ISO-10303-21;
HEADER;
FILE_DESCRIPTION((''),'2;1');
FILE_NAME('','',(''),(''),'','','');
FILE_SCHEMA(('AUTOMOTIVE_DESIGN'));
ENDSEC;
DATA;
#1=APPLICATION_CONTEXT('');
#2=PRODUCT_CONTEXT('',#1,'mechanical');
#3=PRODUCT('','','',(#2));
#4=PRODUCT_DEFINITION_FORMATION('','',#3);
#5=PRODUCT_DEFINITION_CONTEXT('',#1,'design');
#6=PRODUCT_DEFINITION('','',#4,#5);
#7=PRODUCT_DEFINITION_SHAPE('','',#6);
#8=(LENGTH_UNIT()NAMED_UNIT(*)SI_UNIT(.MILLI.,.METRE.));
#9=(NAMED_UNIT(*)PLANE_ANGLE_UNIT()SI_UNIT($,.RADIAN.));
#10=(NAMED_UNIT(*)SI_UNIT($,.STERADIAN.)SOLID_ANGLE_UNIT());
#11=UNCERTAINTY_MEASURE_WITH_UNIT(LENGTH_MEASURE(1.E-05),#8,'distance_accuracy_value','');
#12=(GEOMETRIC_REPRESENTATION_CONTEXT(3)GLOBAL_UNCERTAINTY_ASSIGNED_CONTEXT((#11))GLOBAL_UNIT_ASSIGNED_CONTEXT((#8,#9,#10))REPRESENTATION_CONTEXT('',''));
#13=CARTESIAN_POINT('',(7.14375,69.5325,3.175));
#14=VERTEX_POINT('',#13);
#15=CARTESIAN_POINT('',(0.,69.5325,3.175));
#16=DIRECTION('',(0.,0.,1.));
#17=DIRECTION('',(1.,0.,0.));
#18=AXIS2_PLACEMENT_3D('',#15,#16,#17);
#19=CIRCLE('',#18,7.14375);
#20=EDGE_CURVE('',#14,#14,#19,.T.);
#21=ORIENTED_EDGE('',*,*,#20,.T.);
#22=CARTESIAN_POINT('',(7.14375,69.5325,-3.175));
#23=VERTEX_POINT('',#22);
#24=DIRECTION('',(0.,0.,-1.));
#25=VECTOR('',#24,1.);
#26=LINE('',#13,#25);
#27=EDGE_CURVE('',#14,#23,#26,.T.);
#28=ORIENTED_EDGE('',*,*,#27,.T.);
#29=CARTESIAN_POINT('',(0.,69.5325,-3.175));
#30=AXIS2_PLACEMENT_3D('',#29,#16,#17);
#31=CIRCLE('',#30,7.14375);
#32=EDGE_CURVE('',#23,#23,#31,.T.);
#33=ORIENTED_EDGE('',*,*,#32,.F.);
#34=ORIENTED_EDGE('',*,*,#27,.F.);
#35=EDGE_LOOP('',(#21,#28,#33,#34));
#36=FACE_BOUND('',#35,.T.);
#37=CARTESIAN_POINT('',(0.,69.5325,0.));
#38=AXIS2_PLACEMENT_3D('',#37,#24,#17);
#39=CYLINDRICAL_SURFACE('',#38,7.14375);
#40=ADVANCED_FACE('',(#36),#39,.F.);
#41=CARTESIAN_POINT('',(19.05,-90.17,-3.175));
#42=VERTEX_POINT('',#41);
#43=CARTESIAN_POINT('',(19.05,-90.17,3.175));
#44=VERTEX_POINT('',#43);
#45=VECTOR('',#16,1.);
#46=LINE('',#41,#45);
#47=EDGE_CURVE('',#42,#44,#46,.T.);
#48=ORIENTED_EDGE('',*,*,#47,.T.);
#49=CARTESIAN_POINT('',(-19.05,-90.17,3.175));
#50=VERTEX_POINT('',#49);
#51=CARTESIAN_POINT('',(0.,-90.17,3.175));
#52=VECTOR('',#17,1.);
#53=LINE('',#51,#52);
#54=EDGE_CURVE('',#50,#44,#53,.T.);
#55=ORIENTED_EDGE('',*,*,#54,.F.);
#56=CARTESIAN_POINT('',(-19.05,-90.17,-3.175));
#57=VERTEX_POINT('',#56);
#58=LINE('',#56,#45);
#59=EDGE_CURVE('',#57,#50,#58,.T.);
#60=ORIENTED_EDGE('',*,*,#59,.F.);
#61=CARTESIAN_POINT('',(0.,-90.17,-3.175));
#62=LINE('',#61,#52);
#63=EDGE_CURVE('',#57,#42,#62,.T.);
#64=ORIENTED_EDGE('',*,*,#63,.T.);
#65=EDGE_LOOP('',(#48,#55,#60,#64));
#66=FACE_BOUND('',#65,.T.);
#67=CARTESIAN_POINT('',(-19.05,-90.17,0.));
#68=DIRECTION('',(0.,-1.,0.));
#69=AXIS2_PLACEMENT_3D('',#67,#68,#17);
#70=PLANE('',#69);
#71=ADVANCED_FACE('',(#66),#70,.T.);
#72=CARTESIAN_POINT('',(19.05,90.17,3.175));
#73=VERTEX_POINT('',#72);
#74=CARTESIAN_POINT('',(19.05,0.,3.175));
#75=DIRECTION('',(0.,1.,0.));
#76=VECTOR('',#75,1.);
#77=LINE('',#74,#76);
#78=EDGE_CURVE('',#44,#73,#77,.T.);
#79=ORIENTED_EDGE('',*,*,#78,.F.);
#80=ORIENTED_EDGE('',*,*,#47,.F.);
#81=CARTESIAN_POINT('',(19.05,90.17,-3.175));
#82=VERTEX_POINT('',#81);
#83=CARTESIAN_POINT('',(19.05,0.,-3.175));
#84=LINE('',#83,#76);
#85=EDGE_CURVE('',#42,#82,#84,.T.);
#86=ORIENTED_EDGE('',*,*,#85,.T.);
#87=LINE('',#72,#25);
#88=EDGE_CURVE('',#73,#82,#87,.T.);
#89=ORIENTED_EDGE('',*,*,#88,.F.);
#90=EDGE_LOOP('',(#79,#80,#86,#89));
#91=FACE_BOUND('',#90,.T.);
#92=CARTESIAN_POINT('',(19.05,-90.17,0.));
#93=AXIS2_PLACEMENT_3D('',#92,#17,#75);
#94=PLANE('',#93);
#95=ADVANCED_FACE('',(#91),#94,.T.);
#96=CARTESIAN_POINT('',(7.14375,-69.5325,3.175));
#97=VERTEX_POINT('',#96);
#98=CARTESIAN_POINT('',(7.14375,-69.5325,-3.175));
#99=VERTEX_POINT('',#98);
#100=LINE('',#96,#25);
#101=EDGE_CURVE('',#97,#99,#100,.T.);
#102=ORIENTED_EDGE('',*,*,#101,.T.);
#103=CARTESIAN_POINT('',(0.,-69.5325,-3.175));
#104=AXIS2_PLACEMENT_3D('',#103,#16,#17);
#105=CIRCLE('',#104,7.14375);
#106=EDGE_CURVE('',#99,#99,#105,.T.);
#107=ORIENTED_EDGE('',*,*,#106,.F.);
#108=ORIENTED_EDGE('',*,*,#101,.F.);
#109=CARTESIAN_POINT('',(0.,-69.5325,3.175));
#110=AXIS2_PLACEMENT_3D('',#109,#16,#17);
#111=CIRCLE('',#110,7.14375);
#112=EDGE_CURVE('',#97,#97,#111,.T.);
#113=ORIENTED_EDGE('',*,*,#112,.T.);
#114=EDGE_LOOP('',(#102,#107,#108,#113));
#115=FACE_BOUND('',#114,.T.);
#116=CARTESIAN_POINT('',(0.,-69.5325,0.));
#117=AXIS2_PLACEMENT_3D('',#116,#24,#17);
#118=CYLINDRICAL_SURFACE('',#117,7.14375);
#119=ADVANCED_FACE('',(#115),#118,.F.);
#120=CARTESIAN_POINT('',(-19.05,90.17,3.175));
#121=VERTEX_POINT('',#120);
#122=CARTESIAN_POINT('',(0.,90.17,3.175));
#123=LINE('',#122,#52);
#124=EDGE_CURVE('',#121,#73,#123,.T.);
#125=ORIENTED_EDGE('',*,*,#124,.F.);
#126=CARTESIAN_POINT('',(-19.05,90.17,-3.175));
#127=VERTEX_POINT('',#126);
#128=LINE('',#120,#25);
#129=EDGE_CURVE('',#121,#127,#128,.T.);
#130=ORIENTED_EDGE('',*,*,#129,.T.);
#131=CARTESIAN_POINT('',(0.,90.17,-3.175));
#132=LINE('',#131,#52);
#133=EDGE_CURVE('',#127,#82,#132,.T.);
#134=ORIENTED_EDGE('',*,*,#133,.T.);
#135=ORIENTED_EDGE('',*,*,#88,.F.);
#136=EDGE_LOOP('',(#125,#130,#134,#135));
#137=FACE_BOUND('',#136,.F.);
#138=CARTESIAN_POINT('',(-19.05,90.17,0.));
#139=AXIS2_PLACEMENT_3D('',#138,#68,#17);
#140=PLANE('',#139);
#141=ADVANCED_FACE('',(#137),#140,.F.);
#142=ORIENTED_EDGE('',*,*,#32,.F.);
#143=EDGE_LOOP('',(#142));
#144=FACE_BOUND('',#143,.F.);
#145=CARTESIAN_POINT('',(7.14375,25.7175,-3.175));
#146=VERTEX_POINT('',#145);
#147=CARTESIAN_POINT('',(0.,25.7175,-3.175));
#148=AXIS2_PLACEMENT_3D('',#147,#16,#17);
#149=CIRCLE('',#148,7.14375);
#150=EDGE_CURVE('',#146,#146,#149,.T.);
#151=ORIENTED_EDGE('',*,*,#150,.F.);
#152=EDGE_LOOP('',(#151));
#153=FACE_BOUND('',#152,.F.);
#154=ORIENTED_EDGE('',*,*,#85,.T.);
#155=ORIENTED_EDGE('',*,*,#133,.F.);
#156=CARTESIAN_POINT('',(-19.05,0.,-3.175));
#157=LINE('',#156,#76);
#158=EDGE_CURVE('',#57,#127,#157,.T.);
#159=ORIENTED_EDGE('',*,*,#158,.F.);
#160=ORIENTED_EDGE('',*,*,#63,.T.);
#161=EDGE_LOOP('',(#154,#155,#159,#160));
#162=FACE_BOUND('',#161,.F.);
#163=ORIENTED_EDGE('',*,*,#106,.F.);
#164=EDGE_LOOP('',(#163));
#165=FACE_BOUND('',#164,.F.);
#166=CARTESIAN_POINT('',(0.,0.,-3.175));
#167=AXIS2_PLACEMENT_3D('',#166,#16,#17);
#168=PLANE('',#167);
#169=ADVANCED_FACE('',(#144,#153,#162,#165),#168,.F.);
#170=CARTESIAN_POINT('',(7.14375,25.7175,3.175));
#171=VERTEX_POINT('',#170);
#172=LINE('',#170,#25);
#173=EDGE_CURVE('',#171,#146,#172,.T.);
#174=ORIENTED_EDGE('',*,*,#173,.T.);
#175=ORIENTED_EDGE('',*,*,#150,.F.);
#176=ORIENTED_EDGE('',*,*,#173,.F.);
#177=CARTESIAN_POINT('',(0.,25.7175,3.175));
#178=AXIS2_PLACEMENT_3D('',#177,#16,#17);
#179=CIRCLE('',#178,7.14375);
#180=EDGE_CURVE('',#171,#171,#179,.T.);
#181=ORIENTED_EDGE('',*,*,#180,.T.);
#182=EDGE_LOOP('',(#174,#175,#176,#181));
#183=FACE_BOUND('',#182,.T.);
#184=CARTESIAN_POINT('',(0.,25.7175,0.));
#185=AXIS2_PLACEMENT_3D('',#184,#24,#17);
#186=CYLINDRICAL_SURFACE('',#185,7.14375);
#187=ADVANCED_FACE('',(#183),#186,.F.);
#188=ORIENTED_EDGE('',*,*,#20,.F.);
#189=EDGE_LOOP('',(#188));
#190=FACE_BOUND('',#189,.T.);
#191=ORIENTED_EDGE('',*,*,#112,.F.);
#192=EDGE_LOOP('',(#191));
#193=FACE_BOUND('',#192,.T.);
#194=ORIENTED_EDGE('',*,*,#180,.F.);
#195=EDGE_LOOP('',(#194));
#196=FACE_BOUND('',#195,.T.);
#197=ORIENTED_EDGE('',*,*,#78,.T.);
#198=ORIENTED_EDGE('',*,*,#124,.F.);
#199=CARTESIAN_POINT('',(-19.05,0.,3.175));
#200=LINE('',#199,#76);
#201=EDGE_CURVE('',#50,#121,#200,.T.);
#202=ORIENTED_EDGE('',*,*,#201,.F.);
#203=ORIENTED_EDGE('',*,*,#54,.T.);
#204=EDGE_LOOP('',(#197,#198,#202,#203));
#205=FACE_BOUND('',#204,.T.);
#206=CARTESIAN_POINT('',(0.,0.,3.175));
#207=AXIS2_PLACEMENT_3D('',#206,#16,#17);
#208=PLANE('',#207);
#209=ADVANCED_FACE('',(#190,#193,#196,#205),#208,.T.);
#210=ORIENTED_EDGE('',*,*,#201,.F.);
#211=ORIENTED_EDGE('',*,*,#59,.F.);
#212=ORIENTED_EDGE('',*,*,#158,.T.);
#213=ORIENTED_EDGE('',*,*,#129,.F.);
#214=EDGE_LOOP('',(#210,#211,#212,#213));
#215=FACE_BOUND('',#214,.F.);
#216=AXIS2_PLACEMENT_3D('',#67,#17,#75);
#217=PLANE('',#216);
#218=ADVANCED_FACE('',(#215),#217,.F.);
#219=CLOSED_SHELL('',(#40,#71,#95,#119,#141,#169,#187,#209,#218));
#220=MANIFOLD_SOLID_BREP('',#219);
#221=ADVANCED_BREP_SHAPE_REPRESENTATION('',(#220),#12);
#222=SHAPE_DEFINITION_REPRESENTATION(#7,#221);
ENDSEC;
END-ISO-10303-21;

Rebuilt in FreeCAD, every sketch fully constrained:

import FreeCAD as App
import Part
import Sketcher
from FreeCAD import Vector
Q = App.Units.Quantity


def add_polygon(sketch, points):
    """Adds a closed chain of lines whose ends are joined by coincident constraints."""
    first, n = sketch.GeometryCount, len(points)
    for a, b in zip(points, points[1:] + points[:1]):
        sketch.addGeometry(Part.LineSegment(App.Vector(*a, 0), App.Vector(*b, 0)), False)
    for i in range(n):
        sketch.addConstraint(Sketcher.Constraint("Coincident", first + i, 2, first + (i + 1) % n, 1))

doc = App.newDocument("Part")
body = doc.addObject("PartDesign::Body", "Body")

# Sketch on XY plane
sketch1 = body.newObject("Sketcher::SketchObject", "Sketch")
sketch1.AttachmentSupport = (doc.getObject("XY_Plane"), [""])
sketch1.MapMode = "FlatFace"
add_polygon(sketch1, [(-19, 90), (-19, -90), (19, -90), (19, 90)])  # lines 0-3
sketch1.addGeometry(Part.Circle(Vector(0, -70, 0), Vector(0, 0, 1), 7), False)  # 4
sketch1.addGeometry(Part.Circle(Vector(0, 26, 0), Vector(0, 0, 1), 7), False)  # 5
sketch1.addGeometry(Part.Circle(Vector(0, 70, 0), Vector(0, 0, 1), 7), False)  # 6
sketch1.addConstraint([
    Sketcher.Constraint("Vertical", 0),
    Sketcher.Constraint("Horizontal", 1),
    Sketcher.Constraint("Vertical", 2),
    Sketcher.Constraint("Horizontal", 3),
    Sketcher.Constraint("Equal", 4, 5),
    Sketcher.Constraint("Equal", 5, 6),
    Sketcher.Constraint("Symmetric", 4, 3, 6, 3, -1, 1),
    Sketcher.Constraint("Symmetric", 0, 2, 2, 2, -1, 1),
    Sketcher.Constraint("PointOnObject", 4, 3, -2),
    Sketcher.Constraint("PointOnObject", 5, 3, -2),
    Sketcher.Constraint("Diameter", 4, Q("0.5625 in")),
    Sketcher.Constraint("DistanceX", 1, 1, 1, 2, Q("1.5 in")),
    Sketcher.Constraint("DistanceY", 0, 2, 0, 1, Q("7.1 in")),
    Sketcher.Constraint("DistanceY", 4, 3, 5, 3, Q("3.75 in")),
    Sketcher.Constraint("DistanceY", 5, 3, 6, 3, Q("1.725 in")),
])
pad1 = body.newObject("PartDesign::Pad", "Pad")
pad1.Profile = sketch1
pad1.Length = Q("0.25 in")
pad1.Midplane = True

doc.recompute()
